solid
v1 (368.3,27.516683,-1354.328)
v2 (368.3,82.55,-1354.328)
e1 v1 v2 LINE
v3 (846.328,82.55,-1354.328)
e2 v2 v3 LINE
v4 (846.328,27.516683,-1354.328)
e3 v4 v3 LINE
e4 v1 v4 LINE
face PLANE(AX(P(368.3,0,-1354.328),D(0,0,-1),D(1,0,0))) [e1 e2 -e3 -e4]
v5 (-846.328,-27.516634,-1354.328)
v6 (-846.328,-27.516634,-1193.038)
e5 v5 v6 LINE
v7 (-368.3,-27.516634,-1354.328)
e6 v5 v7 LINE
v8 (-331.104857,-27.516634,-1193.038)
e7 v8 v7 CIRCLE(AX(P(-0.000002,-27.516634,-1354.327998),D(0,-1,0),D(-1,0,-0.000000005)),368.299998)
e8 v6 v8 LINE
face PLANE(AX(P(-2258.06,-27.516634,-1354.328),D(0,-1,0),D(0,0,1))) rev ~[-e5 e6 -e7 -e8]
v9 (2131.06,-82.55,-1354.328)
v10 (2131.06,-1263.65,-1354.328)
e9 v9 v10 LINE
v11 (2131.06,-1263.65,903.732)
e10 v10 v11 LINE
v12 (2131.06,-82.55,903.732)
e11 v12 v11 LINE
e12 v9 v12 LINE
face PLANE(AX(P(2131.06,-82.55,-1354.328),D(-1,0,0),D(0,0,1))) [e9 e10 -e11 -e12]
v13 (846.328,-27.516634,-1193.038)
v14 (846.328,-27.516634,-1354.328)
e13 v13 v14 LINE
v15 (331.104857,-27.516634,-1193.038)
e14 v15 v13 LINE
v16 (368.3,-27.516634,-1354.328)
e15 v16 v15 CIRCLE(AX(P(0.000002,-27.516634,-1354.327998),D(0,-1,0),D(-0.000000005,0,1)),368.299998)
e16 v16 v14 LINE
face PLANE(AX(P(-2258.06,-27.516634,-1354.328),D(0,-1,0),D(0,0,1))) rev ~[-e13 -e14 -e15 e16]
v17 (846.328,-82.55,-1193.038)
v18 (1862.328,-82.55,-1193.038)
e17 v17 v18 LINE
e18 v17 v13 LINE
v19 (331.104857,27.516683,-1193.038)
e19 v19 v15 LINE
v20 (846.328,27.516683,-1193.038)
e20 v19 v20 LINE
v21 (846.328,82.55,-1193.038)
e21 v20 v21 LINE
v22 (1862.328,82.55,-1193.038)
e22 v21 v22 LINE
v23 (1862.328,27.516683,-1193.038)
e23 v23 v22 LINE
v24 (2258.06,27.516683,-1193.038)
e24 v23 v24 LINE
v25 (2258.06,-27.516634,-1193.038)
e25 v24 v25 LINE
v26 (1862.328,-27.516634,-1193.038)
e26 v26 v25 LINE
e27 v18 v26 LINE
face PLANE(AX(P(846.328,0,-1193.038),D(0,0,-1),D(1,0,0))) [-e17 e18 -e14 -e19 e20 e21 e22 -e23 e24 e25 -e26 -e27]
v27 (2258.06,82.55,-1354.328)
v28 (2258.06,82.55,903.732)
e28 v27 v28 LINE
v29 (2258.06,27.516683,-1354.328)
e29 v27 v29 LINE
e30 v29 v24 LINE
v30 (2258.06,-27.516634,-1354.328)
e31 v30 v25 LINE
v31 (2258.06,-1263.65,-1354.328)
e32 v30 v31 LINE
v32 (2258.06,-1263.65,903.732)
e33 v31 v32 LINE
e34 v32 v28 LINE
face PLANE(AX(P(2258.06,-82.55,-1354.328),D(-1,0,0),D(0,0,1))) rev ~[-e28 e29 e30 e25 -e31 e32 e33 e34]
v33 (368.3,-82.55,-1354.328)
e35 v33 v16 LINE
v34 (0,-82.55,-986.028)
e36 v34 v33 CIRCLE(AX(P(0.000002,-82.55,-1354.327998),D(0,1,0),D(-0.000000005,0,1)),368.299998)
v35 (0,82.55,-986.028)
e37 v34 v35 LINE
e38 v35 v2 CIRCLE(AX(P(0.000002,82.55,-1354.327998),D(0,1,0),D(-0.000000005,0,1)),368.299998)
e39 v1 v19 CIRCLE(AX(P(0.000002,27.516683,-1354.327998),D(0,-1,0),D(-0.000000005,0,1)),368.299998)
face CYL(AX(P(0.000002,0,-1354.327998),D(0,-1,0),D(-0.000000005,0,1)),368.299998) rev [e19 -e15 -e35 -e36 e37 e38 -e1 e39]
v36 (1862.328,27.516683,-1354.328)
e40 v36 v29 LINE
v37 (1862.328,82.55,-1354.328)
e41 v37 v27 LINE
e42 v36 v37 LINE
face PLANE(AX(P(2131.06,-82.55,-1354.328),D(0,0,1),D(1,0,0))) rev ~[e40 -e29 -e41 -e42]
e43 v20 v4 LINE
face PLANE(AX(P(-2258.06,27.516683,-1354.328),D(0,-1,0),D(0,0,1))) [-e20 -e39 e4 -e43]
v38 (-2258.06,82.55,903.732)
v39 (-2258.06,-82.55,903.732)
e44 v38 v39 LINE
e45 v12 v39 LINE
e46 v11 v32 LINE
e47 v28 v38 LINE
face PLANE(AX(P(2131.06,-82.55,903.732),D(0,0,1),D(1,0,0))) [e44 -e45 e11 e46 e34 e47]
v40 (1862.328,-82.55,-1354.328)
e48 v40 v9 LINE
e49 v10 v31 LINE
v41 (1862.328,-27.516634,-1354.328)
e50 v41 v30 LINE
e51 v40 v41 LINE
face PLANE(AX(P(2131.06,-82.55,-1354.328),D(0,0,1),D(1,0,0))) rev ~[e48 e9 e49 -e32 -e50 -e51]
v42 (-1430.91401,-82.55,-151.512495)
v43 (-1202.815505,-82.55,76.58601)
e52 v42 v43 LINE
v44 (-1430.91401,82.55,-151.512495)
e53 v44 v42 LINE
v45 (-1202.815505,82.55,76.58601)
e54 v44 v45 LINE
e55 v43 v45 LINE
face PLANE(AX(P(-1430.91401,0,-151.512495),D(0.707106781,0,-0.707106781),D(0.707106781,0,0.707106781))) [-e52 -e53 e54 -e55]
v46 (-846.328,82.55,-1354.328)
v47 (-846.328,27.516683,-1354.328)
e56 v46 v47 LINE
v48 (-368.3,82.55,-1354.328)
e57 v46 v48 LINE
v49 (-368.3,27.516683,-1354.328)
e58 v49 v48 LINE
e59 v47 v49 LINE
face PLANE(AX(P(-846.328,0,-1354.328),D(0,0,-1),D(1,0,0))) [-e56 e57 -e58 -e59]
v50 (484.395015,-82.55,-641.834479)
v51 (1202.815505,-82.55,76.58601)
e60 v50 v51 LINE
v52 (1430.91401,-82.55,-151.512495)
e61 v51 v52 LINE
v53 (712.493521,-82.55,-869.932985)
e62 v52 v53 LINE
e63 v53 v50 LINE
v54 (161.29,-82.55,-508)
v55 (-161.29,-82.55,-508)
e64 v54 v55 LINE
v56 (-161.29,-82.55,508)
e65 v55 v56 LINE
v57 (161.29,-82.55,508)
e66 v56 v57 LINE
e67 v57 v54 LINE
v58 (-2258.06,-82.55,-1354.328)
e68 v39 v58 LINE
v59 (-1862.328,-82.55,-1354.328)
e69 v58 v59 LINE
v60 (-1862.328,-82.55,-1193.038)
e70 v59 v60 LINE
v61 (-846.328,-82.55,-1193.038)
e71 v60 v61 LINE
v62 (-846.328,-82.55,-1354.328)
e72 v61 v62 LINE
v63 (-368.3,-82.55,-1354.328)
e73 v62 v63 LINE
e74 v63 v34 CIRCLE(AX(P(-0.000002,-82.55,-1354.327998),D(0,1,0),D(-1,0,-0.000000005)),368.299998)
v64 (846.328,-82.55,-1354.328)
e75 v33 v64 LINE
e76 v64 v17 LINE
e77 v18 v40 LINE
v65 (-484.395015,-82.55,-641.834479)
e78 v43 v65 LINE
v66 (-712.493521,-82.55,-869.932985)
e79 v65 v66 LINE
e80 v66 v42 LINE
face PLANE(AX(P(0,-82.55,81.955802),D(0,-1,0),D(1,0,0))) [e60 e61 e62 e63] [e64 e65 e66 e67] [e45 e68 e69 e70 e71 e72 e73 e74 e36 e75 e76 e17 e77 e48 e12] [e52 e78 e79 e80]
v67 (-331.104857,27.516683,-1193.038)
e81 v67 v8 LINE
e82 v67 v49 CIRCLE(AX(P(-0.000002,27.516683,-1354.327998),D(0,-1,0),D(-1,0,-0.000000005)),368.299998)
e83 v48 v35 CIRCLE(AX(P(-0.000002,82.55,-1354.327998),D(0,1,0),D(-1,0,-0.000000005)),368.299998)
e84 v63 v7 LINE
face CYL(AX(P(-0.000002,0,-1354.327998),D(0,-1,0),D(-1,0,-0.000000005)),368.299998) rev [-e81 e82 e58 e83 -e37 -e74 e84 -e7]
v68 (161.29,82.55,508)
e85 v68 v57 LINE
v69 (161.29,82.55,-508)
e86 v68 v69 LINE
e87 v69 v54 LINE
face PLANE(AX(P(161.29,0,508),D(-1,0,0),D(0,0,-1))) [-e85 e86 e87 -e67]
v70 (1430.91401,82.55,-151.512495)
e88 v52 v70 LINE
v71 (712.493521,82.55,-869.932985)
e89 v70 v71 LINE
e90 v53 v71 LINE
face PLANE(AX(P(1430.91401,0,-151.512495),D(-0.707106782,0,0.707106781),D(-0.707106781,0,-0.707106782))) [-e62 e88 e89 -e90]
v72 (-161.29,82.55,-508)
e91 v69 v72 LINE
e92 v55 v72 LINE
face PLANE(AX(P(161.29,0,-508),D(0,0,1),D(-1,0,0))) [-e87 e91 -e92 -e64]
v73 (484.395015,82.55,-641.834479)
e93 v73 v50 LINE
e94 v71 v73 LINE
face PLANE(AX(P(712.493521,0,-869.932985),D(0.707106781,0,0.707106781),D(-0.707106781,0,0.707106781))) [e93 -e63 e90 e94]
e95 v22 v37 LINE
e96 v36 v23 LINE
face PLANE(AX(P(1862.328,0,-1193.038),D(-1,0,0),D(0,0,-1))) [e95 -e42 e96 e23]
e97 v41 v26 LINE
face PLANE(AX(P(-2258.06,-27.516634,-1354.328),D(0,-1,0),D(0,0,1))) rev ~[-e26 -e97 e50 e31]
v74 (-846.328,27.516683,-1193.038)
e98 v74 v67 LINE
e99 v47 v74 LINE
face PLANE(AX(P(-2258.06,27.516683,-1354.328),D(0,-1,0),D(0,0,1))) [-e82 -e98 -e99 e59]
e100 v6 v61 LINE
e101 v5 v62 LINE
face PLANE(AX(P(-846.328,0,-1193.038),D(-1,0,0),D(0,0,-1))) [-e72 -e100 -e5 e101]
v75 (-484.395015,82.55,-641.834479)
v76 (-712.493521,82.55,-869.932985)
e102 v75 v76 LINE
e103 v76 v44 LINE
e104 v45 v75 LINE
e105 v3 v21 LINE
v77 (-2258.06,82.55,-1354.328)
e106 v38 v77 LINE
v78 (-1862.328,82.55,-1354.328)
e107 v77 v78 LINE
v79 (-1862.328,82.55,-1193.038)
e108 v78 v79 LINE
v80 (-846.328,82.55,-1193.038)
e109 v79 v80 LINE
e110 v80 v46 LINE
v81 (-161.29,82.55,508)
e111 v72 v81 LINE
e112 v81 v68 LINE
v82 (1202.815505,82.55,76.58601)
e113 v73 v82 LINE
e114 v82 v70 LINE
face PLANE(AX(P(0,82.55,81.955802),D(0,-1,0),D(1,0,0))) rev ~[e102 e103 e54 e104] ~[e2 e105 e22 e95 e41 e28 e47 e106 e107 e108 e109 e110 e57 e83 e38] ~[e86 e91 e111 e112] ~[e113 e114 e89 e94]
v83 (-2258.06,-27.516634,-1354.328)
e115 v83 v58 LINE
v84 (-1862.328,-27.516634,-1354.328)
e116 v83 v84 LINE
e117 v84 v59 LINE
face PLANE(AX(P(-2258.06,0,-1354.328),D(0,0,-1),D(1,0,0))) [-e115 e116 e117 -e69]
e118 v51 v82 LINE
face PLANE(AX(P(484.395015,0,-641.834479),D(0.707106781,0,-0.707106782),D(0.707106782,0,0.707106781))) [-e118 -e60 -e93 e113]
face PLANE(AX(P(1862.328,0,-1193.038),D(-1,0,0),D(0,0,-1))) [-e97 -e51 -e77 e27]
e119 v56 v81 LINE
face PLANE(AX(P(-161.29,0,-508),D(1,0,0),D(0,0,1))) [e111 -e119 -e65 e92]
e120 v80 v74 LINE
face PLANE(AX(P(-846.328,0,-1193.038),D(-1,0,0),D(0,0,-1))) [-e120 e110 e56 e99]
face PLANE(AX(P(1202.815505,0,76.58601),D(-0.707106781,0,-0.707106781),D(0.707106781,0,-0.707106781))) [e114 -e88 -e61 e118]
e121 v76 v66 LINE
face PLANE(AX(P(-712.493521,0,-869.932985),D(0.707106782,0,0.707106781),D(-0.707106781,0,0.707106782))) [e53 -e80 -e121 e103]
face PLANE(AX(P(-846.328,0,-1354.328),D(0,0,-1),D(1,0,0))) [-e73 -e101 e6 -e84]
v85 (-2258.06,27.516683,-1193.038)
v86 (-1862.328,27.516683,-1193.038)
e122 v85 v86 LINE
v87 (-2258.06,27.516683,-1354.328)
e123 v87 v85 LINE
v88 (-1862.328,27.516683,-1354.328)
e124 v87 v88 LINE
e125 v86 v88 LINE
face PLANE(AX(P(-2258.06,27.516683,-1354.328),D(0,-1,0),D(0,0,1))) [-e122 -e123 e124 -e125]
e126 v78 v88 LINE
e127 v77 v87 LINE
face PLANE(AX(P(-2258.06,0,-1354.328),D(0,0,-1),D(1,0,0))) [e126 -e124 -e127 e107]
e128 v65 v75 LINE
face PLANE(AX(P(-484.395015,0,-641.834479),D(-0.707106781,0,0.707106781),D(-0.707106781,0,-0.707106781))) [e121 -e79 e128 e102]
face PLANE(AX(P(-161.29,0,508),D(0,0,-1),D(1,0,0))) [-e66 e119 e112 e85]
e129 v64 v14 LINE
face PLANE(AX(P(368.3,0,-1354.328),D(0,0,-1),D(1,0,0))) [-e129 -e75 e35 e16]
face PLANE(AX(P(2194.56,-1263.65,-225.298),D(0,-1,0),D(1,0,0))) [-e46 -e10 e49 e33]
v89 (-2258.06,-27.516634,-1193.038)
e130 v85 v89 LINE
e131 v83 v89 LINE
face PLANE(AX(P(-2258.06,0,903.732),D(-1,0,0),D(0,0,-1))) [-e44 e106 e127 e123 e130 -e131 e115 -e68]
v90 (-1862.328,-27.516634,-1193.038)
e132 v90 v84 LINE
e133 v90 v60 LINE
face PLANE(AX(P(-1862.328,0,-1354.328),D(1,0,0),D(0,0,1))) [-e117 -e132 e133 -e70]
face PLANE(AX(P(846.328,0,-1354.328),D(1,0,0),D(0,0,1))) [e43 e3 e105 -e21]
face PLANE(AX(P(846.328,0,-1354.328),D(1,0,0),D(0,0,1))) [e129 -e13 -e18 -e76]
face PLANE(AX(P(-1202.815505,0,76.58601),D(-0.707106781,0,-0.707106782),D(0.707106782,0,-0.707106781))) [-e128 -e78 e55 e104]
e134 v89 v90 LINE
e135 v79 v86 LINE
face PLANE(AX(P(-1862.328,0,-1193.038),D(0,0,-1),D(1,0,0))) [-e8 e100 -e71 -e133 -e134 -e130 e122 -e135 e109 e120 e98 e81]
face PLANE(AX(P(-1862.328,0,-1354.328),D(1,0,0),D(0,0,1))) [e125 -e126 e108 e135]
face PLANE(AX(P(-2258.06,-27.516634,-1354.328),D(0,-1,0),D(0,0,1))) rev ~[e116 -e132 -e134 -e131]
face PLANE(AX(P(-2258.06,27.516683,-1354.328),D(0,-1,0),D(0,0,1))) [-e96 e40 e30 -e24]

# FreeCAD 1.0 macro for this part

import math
import FreeCAD as App
import Part
import Sketcher
from FreeCAD import Vector
Q = App.Units.Quantity


def add_polygon(sketch, points):
    """Adds a closed chain of lines whose ends are joined by coincident constraints."""
    first, n = sketch.GeometryCount, len(points)
    for a, b in zip(points, points[1:] + points[:1]):
        sketch.addGeometry(Part.LineSegment(App.Vector(*a, 0), App.Vector(*b, 0)), False)
    for i in range(n):
        sketch.addConstraint(Sketcher.Constraint("Coincident", first + i, 2, first + (i + 1) % n, 1))

doc = App.newDocument("Part")
body = doc.addObject("PartDesign::Body", "Body")

sketch1 = doc.addObject("Sketcher::SketchObject", "Sketch")
body.addObject(sketch1)
sketch1.AttachmentSupport = (doc.XZ_Plane, [""])
sketch1.MapMode = "FlatFace"
sketch1.addGeometry(Part.LineSegment(Vector(2258, -1354, 0), Vector(2258, 904, 0)), False)
sketch1.addGeometry(Part.LineSegment(Vector(2258, 904, 0), Vector(-2258, 904, 0)), False)
sketch1.addGeometry(Part.LineSegment(Vector(-2258, 904, 0), Vector(-2258, -1354, 0)), False)
sketch1.addGeometry(Part.LineSegment(Vector(-2258, -1354, 0), Vector(-1862, -1354, 0)), False)
sketch1.addGeometry(Part.LineSegment(Vector(-1862, -1354, 0), Vector(-1862, -1193, 0)), False)
sketch1.addGeometry(Part.LineSegment(Vector(-1862, -1193, 0), Vector(-846, -1193, 0)), False)
sketch1.addGeometry(Part.LineSegment(Vector(-846, -1193, 0), Vector(-846, -1354, 0)), False)
sketch1.addGeometry(Part.LineSegment(Vector(-846, -1354, 0), Vector(-368, -1354, 0)), False)
sketch1.addGeometry(Part.ArcOfCircle(Part.Circle(Vector(0, -1354, 0), Vector(0, 0, 1), 368), math.radians(90), math.radians(180)), False)
sketch1.addGeometry(Part.ArcOfCircle(Part.Circle(Vector(0, -1354, 0), Vector(0, 0, 1), 368), math.radians(0), math.radians(90)), False)
sketch1.addGeometry(Part.LineSegment(Vector(368, -1354, 0), Vector(846, -1354, 0)), False)
sketch1.addGeometry(Part.LineSegment(Vector(846, -1354, 0), Vector(846, -1193, 0)), False)
sketch1.addGeometry(Part.LineSegment(Vector(846, -1193, 0), Vector(1862, -1193, 0)), False)
sketch1.addGeometry(Part.LineSegment(Vector(1862, -1193, 0), Vector(1862, -1354, 0)), False)
sketch1.addGeometry(Part.LineSegment(Vector(1862, -1354, 0), Vector(2258, -1354, 0)), False)
add_polygon(sketch1, [(-484, -642), (-712, -870), (-1431, -152), (-1203, 77)])
add_polygon(sketch1, [(712, -870), (484, -642), (1203, 77), (1431, -152)])
add_polygon(sketch1, [(-161, 508), (161, 508), (161, -508), (-161, -508)])
sketch1.addConstraint([
    Sketcher.Constraint("Coincident", 0, 2, 1, 1),
    Sketcher.Constraint("Coincident", 1, 2, 2, 1),
    Sketcher.Constraint("Coincident", 2, 2, 3, 1),
    Sketcher.Constraint("Coincident", 3, 2, 4, 1),
    Sketcher.Constraint("Coincident", 4, 2, 5, 1),
    Sketcher.Constraint("Coincident", 5, 2, 6, 1),
    Sketcher.Constraint("Coincident", 6, 2, 7, 1),
    Sketcher.Constraint("Coincident", 7, 2, 8, 2),
    Sketcher.Constraint("Tangent", 8, 1, 9, 2),
    Sketcher.Constraint("Coincident", 9, 1, 10, 1),
    Sketcher.Constraint("Coincident", 10, 2, 11, 1),
    Sketcher.Constraint("Coincident", 11, 2, 12, 1),
    Sketcher.Constraint("Coincident", 12, 2, 13, 1),
    Sketcher.Constraint("Coincident", 13, 2, 14, 1),
    Sketcher.Constraint("Coincident", 14, 2, 0, 1),
    Sketcher.Constraint("Vertical", 0),
    Sketcher.Constraint("Horizontal", 1),
    Sketcher.Constraint("Vertical", 2),
    Sketcher.Constraint("Horizontal", 3),
    Sketcher.Constraint("Vertical", 4),
    Sketcher.Constraint("Horizontal", 5),
    Sketcher.Constraint("Vertical", 6),
    Sketcher.Constraint("Horizontal", 7),
    Sketcher.Constraint("Horizontal", 10),
    Sketcher.Constraint("Vertical", 11),
    Sketcher.Constraint("Horizontal", 12),
    Sketcher.Constraint("Vertical", 13),
    Sketcher.Constraint("Horizontal", 14),
    Sketcher.Constraint("Horizontal", 23),
    Sketcher.Constraint("Vertical", 24),
    Sketcher.Constraint("Horizontal", 25),
    Sketcher.Constraint("Vertical", 26),
    Sketcher.Constraint("Equal", 8, 9),
    Sketcher.Constraint("Symmetric", 23, 2, 25, 2, -1, 1),
    Sketcher.Constraint("Symmetric", 7, 2, 9, 1, -2),
    Sketcher.Constraint("Symmetric", 5, 2, 11, 2, -2),
    Sketcher.Constraint("Symmetric", 3, 2, 13, 2, -2),
    Sketcher.Constraint("Symmetric", 18, 2, 19, 2, -2),
    Sketcher.Constraint("Symmetric", 17, 2, 20, 2, -2),
    Sketcher.Constraint("Symmetric", 16, 2, 21, 2, -2),
    Sketcher.Constraint("Symmetric", 15, 2, 22, 2, -2),
    Sketcher.Constraint("PointOnObject", 8, 1, -2),
    Sketcher.Constraint("Perpendicular", 15, 16),
    Sketcher.Constraint("Perpendicular", 16, 17),
    Sketcher.Constraint("Perpendicular", 17, 18),
    Sketcher.Constraint("Parallel", 18, 19),
    Sketcher.Constraint("Horizontal", 9, 3, 2, 2),
    Sketcher.Constraint("Horizontal", 3, 2, 6, 2),
    Sketcher.Constraint("Equal", 3, 14),
    Sketcher.Constraint("Equal", 12, 24),
    Sketcher.Constraint("Radius", 8, Q("14.4999999 in")),
    Sketcher.Constraint("DistanceX", 5, 1, 5, 2, Q("40 in")),
    Sketcher.Constraint("Distance", 16, Q("40 in")),
    Sketcher.Constraint("DistanceX", 1, 2, 1, 1, Q("177.8 in")),
    Sketcher.Constraint("DistanceX", 23, 1, 23, 2, Q("12.7 in")),
    Sketcher.Constraint("DistanceY", 0, 1, 0, 2, Q("88.9 in")),
    Sketcher.Constraint("Distance", 15, Q("12.7 in")),
    Sketcher.Constraint("DistanceX", 3, 1, 3, 2, Q("15.58 in")),
    Sketcher.Constraint("DistanceY", 4, 1, 4, 2, Q("6.35 in")),
    Sketcher.Constraint("DistanceY", 8, 3, -1, 1, Q("53.3199999 in")),
    Sketcher.Constraint("DistanceX", 15, 2, -1, 1, Q("712.493521 mm")),
    Sketcher.Constraint("DistanceY", -1, 1, 17, 2, Q("76.58601 mm")),
])
pad1 = doc.addObject("PartDesign::Pad", "Pad")
body.addObject(pad1)
pad1.Profile = sketch1
pad1.Length = Q("6.5 in")
pad1.Midplane = True

sketch2 = doc.addObject("Sketcher::SketchObject", "Sketch001")
body.addObject(sketch2)
sketch2.AttachmentSupport = (doc.XZ_Plane, [""])
sketch2.MapMode = "FlatFace"
sketch2.AttachmentOffset = App.Placement(Vector(0, 0, 3.25 * 25.4), App.Rotation())
add_polygon(sketch2, [(2131, 904), (2131, -1354), (2258, -1354), (2258, 904)])
sketch2.addConstraint([
    Sketcher.Constraint("Vertical", 0),
    Sketcher.Constraint("Horizontal", 1),
    Sketcher.Constraint("Vertical", 2),
    Sketcher.Constraint("Horizontal", 3),
    Sketcher.Constraint("DistanceX", 1, 1, 1, 2, Q("5 in")),
    Sketcher.Constraint("DistanceY", 0, 2, 0, 1, Q("88.9 in")),
    Sketcher.Constraint("DistanceX", -1, 1, 0, 2, Q("83.9 in")),
    Sketcher.Constraint("DistanceY", 0, 2, -1, 1, Q("53.32 in")),
])
pad2 = doc.addObject("PartDesign::Pad", "Pad001")
body.addObject(pad2)
pad2.Profile = sketch2
pad2.Length = Q("46.5 in")

sketch3 = doc.addObject("Sketcher::SketchObject", "Sketch002")
body.addObject(sketch3)
sketch3.AttachmentSupport = (doc.YZ_Plane, [""])
sketch3.MapMode = "FlatFace"
sketch3.AttachmentOffset = App.Placement(Vector(0, 0, -88.9 * 25.4), App.Rotation())
add_polygon(sketch3, [(28, -1193), (28, -1354), (-28, -1354), (-28, -1193)])
sketch3.addConstraint([
    Sketcher.Constraint("Vertical", 0),
    Sketcher.Constraint("Horizontal", 1),
    Sketcher.Constraint("Vertical", 2),
    Sketcher.Constraint("Horizontal", 3),
    Sketcher.Constraint("DistanceY", 0, 2, 0, 1, Q("6.35 in")),
    Sketcher.Constraint("DistanceY", 0, 2, -1, 1, Q("53.32 in")),
    Sketcher.Constraint("DistanceX", 1, 2, 1, 1, Q("55.033317 mm")),
    Sketcher.Constraint("DistanceX", -1, 1, 0, 2, Q("27.516683 mm")),
])
pocket1 = doc.addObject("PartDesign::Pocket", "Pocket")
body.addObject(pocket1)
pocket1.Profile = sketch3
pocket1.Length = Q("177.8 in")
pocket1.Reversed = True

doc.recompute()
